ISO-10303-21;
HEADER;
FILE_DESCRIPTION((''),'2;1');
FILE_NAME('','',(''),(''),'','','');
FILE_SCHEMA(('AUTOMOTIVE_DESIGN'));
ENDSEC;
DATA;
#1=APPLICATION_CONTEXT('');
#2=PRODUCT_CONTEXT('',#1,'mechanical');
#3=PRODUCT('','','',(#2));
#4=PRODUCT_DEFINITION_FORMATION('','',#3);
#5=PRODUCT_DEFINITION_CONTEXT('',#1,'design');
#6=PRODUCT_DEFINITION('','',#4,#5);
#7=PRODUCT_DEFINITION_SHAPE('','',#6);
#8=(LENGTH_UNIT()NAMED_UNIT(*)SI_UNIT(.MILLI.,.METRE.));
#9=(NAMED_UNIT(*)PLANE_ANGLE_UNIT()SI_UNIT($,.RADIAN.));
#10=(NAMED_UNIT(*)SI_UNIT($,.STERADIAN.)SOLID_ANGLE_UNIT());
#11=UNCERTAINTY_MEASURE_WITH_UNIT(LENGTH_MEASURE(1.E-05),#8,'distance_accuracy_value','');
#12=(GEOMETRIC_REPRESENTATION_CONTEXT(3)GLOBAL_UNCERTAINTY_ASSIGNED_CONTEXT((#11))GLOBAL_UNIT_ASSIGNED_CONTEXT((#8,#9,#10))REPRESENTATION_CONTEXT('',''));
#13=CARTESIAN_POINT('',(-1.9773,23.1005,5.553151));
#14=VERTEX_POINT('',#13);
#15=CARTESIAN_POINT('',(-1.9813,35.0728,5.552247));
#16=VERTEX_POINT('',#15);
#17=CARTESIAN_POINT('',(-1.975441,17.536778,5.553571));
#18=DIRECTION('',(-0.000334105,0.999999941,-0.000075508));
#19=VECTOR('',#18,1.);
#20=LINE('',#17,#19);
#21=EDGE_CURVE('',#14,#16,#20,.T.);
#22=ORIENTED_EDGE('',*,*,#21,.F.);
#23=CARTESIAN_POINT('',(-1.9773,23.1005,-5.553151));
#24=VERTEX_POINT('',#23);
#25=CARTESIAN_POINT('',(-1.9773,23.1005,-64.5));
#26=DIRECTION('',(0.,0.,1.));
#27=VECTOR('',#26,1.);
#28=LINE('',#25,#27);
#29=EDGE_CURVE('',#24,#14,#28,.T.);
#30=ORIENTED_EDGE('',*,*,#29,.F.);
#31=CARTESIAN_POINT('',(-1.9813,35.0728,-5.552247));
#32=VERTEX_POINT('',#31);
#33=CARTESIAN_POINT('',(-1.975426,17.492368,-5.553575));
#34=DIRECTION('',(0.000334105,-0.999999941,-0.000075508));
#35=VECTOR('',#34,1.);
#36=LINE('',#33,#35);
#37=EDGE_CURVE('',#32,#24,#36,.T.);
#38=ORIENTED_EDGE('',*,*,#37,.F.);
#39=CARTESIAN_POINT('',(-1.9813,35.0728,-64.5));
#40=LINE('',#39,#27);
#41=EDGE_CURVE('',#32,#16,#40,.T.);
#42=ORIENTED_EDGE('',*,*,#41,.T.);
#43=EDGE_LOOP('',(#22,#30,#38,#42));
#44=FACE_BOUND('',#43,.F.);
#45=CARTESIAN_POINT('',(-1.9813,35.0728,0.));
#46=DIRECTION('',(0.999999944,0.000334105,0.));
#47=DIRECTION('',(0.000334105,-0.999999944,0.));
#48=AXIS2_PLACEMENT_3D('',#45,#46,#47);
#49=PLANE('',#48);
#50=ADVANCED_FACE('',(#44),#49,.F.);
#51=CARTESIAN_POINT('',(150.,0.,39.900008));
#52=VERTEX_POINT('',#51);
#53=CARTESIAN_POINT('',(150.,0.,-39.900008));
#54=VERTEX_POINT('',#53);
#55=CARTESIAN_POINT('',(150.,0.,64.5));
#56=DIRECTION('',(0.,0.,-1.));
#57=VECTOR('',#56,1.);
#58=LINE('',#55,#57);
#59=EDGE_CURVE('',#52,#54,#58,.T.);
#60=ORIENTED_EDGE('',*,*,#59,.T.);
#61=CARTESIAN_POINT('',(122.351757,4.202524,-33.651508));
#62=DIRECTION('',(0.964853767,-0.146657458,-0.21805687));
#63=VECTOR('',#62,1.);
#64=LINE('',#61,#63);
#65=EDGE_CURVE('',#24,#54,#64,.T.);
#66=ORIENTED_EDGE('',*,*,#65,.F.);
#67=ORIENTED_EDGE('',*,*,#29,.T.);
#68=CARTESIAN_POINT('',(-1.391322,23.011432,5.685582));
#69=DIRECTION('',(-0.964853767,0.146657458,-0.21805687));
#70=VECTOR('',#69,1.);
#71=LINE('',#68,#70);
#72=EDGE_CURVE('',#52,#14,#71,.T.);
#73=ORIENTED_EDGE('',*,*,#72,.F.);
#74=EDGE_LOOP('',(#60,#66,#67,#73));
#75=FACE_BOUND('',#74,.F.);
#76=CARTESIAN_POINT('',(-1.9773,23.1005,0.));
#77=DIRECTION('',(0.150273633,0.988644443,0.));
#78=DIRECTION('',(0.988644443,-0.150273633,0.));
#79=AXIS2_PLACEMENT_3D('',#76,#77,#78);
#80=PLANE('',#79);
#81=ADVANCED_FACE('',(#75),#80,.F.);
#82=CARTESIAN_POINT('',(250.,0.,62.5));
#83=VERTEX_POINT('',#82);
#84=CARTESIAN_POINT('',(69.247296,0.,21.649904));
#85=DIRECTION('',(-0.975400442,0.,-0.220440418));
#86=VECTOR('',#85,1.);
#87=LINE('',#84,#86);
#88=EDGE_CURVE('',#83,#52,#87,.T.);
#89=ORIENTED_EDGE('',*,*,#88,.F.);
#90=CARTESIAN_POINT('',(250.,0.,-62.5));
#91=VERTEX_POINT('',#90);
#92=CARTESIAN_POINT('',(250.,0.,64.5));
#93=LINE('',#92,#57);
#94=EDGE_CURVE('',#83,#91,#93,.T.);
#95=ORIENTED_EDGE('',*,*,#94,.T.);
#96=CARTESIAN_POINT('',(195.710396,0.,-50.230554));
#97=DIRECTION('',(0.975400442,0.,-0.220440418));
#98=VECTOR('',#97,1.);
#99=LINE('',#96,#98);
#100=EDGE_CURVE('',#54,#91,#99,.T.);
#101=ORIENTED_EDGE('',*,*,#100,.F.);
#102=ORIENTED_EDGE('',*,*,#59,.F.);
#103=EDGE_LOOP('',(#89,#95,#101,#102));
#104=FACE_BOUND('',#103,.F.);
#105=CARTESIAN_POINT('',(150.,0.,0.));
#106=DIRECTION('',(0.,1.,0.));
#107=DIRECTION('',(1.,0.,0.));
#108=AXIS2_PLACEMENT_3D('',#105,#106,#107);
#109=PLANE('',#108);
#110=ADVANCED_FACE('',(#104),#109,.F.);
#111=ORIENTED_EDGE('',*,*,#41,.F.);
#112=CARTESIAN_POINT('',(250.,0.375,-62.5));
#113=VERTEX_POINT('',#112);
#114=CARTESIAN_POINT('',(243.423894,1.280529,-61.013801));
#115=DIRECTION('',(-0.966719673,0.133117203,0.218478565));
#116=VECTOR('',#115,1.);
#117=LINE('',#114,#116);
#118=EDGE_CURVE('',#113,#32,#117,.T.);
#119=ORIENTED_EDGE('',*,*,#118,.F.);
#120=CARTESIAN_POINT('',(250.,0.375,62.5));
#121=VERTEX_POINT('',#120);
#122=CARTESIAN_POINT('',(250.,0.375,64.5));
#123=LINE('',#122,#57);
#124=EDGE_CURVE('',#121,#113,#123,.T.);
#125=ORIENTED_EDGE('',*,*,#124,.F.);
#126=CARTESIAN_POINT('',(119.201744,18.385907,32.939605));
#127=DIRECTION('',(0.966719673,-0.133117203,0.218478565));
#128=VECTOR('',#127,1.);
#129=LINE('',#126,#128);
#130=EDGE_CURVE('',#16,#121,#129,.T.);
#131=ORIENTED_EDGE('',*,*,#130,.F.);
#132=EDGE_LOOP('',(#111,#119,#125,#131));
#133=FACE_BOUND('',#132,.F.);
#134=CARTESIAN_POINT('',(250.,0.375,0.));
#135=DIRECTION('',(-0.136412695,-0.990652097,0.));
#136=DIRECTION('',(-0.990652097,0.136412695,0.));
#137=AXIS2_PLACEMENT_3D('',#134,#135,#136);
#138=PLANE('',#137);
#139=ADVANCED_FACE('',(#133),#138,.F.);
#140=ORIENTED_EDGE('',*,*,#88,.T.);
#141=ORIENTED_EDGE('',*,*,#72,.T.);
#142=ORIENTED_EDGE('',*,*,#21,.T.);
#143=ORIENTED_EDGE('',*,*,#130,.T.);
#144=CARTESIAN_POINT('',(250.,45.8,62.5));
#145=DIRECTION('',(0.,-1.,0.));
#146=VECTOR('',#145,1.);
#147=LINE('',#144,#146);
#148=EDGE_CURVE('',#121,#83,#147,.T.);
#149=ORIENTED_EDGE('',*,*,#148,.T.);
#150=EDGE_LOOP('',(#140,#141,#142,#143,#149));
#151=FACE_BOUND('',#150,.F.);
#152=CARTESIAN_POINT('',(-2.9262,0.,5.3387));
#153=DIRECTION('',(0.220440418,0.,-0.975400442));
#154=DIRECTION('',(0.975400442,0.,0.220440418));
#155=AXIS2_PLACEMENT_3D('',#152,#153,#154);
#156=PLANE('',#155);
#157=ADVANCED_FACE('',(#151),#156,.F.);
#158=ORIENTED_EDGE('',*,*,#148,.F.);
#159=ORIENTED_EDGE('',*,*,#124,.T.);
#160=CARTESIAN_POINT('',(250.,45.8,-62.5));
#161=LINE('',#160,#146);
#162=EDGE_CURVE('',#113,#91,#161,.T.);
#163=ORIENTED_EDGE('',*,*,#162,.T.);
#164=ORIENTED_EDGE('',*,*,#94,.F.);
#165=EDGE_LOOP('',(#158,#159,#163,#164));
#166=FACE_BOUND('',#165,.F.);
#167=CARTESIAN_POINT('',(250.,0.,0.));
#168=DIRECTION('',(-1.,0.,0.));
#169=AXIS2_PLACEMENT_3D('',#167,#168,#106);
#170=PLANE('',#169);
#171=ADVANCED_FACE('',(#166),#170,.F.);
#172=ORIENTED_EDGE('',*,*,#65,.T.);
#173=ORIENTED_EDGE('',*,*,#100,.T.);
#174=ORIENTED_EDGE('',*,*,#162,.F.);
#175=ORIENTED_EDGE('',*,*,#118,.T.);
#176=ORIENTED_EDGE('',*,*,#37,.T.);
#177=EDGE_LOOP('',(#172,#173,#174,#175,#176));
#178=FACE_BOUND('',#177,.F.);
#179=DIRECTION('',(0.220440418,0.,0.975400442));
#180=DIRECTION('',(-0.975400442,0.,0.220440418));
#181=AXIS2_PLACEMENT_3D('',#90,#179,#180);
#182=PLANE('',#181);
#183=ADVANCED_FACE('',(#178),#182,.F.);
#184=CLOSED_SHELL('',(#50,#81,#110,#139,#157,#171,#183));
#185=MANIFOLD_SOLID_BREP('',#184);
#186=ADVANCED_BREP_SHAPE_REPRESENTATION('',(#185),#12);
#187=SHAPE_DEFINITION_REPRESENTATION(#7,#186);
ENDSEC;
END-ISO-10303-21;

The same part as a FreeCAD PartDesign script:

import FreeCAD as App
import Part
import Sketcher
Q = App.Units.Quantity


def add_polygon(sketch, points):
    """Adds a closed chain of lines whose ends are joined by coincident constraints."""
    first, n = sketch.GeometryCount, len(points)
    for a, b in zip(points, points[1:] + points[:1]):
        sketch.addGeometry(Part.LineSegment(App.Vector(*a, 0), App.Vector(*b, 0)), False)
    for i in range(n):
        sketch.addConstraint(Sketcher.Constraint("Coincident", first + i, 2, first + (i + 1) % n, 1))

doc = App.newDocument("Part")
body = doc.addObject("PartDesign::Body", "Body")

# Sketch on XY plane
sketch1 = body.newObject("Sketcher::SketchObject", "Sketch")
sketch1.AttachmentSupport = (doc.getObject("XY_Plane"), [""])
sketch1.MapMode = "FlatFace"
add_polygon(sketch1, [(250, 0.375), (-1.9813, 35.0728), (-1.9773, 23.1005), (150, 0), (250, 0)])  # lines 0-4
sketch1.addConstraint(Sketcher.Constraint("Horizontal", 3))
sketch1.addConstraint(Sketcher.Constraint("Vertical", 4))
sketch1.addConstraint(Sketcher.Constraint("PointOnObject", 2, 2, -1))
sketch1.addConstraint(Sketcher.Constraint("DistanceX", 3, 1, 3, 2, Q("100 mm")))
sketch1.addConstraint(Sketcher.Constraint("DistanceX", -1, 1, 2, 2, Q("150 mm")))
sketch1.addConstraint(Sketcher.Constraint("Angle", 0, Q("172.1597 deg")))
sketch1.addConstraint(Sketcher.Constraint("Angle", 1, Q("-89.9809 deg")))
sketch1.addConstraint(Sketcher.Constraint("DistanceY", 4, 1, 4, 2, Q("0.375 mm")))
sketch1.addConstraint(Sketcher.Constraint("Distance", 0, Q("254.359 mm")))
sketch1.addConstraint(Sketcher.Constraint("Distance", 2, Q("153.723 mm")))
pad1 = body.newObject("PartDesign::Pad", "Pad")
pad1.Profile = sketch1
pad1.Length = 129
pad1.Midplane = True

# Sketch on XZ plane
sketch2 = body.newObject("Sketcher::SketchObject", "Sketch001")
sketch2.AttachmentSupport = (doc.getObject("XZ_Plane"), [""])
sketch2.MapMode = "FlatFace"
add_polygon(sketch2, [(-5, -131), (-5, 131), (260, 131), (260, -131)])  # lines 0-3
add_polygon(sketch2, [(250, 62.5), (-2.9262, 5.3387), (-2.9262, -5.3387), (250, -62.5)])  # lines 4-7
sketch2.addConstraint(Sketcher.Constraint("Vertical", 0))
sketch2.addConstraint(Sketcher.Constraint("Horizontal", 1))
sketch2.addConstraint(Sketcher.Constraint("Vertical", 2))
sketch2.addConstraint(Sketcher.Constraint("Horizontal", 3))
sketch2.addConstraint(Sketcher.Constraint("Vertical", 5))
sketch2.addConstraint(Sketcher.Constraint("Vertical", 7))
sketch2.addConstraint(Sketcher.Constraint("Equal", 4, 6))
sketch2.addConstraint(Sketcher.Constraint("DistanceX", 1, 1, 1, 2, Q("265 mm")))
sketch2.addConstraint(Sketcher.Constraint("DistanceY", 0, 1, 0, 2, Q("262 mm")))
sketch2.addConstraint(Sketcher.Constraint("DistanceY", 7, 1, 7, 2, Q("125 mm")))
sketch2.addConstraint(Sketcher.Constraint("DistanceX", 0, 2, -1, 1, Q("5 mm")))
sketch2.addConstraint(Sketcher.Constraint("DistanceY", -1, 1, 0, 2, Q("131 mm")))
sketch2.addConstraint(Sketcher.Constraint("DistanceX", -1, 1, 6, 2, Q("250 mm")))
sketch2.addConstraint(Sketcher.Constraint("DistanceY", 6, 2, -1, 1, Q("62.5 mm")))
sketch2.addConstraint(Sketcher.Constraint("Distance", 4, Q("259.305 mm")))
sketch2.addConstraint(Sketcher.Constraint("DistanceY", 5, 2, 5, 1, Q("10.6774 mm")))
pocket1 = body.newObject("PartDesign::Pocket", "Pocket")
pocket1.Profile = sketch2
pocket1.Length = 91.6
pocket1.Midplane = True

doc.recompute()
